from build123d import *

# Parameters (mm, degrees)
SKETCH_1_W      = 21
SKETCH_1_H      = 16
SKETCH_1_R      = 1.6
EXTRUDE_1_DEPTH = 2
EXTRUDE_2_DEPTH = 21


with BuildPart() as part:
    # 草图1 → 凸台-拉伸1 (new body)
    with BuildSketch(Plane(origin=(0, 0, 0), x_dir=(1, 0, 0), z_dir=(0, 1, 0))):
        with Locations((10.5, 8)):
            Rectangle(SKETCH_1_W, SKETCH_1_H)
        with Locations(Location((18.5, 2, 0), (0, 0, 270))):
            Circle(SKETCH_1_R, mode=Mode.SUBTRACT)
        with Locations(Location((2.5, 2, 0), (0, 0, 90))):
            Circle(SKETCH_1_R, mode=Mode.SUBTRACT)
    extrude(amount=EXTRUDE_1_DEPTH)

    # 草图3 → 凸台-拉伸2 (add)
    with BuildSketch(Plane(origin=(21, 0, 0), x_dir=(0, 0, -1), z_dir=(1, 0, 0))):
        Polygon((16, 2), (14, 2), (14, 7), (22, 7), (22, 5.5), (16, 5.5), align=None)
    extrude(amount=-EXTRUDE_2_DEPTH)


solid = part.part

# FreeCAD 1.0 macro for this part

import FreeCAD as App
import Part
import Sketcher

V = App.Vector

doc = App.newDocument("Part")
body = doc.addObject("PartDesign::Body", "Body")

# Sketch on XZ plane
sketch1 = body.newObject("Sketcher::SketchObject", "Sketch")
sketch1.AttachmentSupport = (doc.getObject("XZ_Plane"), [""])
sketch1.MapMode = "FlatFace"
sketch1.addGeometry(Part.LineSegment(V(0, -16, 0), V(0, 0, 0)), False)
sketch1.addGeometry(Part.LineSegment(V(0, 0, 0), V(21, 0, 0)), False)
sketch1.addGeometry(Part.LineSegment(V(21, 0, 0), V(21, -16, 0)), False)
sketch1.addGeometry(Part.LineSegment(V(21, -16, 0), V(0, -16, 0)), False)
sketch1.addGeometry(Part.Circle(V(2.5, -2, 0), V(0, 0, 1), 1.6), False)
sketch1.addGeometry(Part.Circle(V(18.5, -2, 0), V(0, 0, 1), 1.6), False)
sketch1.addConstraint(Sketcher.Constraint("Coincident", 0, 2, 1, 1))
sketch1.addConstraint(Sketcher.Constraint("Coincident", 1, 2, 2, 1))
sketch1.addConstraint(Sketcher.Constraint("Coincident", 2, 2, 3, 1))
sketch1.addConstraint(Sketcher.Constraint("Coincident", 3, 2, 0, 1))
sketch1.addConstraint(Sketcher.Constraint("Vertical", 0))
sketch1.addConstraint(Sketcher.Constraint("Horizontal", 1))
sketch1.addConstraint(Sketcher.Constraint("Vertical", 2))
sketch1.addConstraint(Sketcher.Constraint("Horizontal", 3))
sketch1.addConstraint(Sketcher.Constraint("Coincident", 0, 2, -1, 1))
sketch1.addConstraint(Sketcher.Constraint("Equal", 4, 5))
sketch1.addConstraint(Sketcher.Constraint("Horizontal", 4, 3, 5, 3))
sketch1.addConstraint(Sketcher.Constraint("Diameter", 4, 3.2))
sketch1.addConstraint(Sketcher.Constraint("DistanceX", 1, 1, 1, 2, 21.0))
sketch1.addConstraint(Sketcher.Constraint("DistanceY", 0, 1, 0, 2, 16.0))
sketch1.addConstraint(Sketcher.Constraint("DistanceY", 4, 3, -1, 1, 2.0))
sketch1.addConstraint(Sketcher.Constraint("DistanceX", 4, 3, 5, 3, 16.0))
sketch1.addConstraint(Sketcher.Constraint("DistanceX", -1, 1, 4, 3, 2.5))
pad1 = body.newObject("PartDesign::Pad", "Pad")
pad1.Profile = sketch1
pad1.Length = 2
pad1.Reversed = True

# Sketch on YZ plane
sketch2 = body.newObject("Sketcher::SketchObject", "Sketch001")
sketch2.AttachmentSupport = (doc.getObject("YZ_Plane"), [""])
sketch2.MapMode = "FlatFace"
sketch2.AttachmentOffset = App.Placement(V(0, 0, 21), App.Rotation())
sketch2.addGeometry(Part.LineSegment(V(2, -14, 0), V(2, -16, 0)), False)
sketch2.addGeometry(Part.LineSegment(V(2, -16, 0), V(5.5, -16, 0)), False)
sketch2.addGeometry(Part.LineSegment(V(5.5, -16, 0), V(5.5, -22, 0)), False)
sketch2.addGeometry(Part.LineSegment(V(5.5, -22, 0), V(7, -22, 0)), False)
sketch2.addGeometry(Part.LineSegment(V(7, -22, 0), V(7, -14, 0)), False)
sketch2.addGeometry(Part.LineSegment(V(7, -14, 0), V(2, -14, 0)), False)
sketch2.addConstraint(Sketcher.Constraint("Coincident", 0, 2, 1, 1))
sketch2.addConstraint(Sketcher.Constraint("Coincident", 1, 2, 2, 1))
sketch2.addConstraint(Sketcher.Constraint("Coincident", 2, 2, 3, 1))
sketch2.addConstraint(Sketcher.Constraint("Coincident", 3, 2, 4, 1))
sketch2.addConstraint(Sketcher.Constraint("Coincident", 4, 2, 5, 1))
sketch2.addConstraint(Sketcher.Constraint("Coincident", 5, 2, 0, 1))
sketch2.addConstraint(Sketcher.Constraint("Vertical", 0))
sketch2.addConstraint(Sketcher.Constraint("Horizontal", 1))
sketch2.addConstraint(Sketcher.Constraint("Vertical", 2))
sketch2.addConstraint(Sketcher.Constraint("Horizontal", 3))
sketch2.addConstraint(Sketcher.Constraint("Vertical", 4))
sketch2.addConstraint(Sketcher.Constraint("Horizontal", 5))
sketch2.addConstraint(Sketcher.Constraint("DistanceX", 5, 2, 5, 1, 5.0))
sketch2.addConstraint(Sketcher.Constraint("DistanceY", 0, 2, 0, 1, 2.0))
sketch2.addConstraint(Sketcher.Constraint("DistanceY", 2, 2, 2, 1, 6.0))
sketch2.addConstraint(Sketcher.Constraint("DistanceX", 1, 1, 1, 2, 3.5))
sketch2.addConstraint(Sketcher.Constraint("DistanceX", -1, 1, 0, 2, 2.0))
sketch2.addConstraint(Sketcher.Constraint("DistanceY", 0, 2, -1, 1, 16.0))
pad2 = body.newObject("PartDesign::Pad", "Pad001")
pad2.Profile = sketch2
pad2.Length = 21
pad2.Reversed = True

doc.recompute()
